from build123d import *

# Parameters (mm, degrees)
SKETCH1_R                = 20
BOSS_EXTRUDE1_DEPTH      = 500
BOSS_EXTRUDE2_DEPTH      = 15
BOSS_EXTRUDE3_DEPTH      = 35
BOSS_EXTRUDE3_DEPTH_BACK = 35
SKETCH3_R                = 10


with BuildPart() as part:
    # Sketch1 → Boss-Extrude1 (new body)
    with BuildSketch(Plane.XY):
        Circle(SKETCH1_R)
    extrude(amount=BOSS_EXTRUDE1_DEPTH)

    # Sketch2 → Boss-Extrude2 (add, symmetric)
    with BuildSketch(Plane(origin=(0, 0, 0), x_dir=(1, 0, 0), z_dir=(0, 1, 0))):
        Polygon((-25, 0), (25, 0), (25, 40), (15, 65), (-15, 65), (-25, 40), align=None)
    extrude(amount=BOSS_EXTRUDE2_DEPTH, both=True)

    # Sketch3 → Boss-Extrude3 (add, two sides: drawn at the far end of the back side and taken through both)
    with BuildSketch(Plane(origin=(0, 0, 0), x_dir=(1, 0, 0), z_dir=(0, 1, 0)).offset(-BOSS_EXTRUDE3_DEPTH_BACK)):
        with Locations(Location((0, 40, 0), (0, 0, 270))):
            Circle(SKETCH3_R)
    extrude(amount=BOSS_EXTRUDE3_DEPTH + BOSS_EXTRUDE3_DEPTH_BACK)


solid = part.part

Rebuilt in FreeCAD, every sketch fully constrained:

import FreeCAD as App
import Part
import Sketcher

doc = App.newDocument("Part")
params = doc.addObject("Spreadsheet::Sheet", "Params")
for row, (alias, value) in enumerate([
    ("sketch1_diameter", "40 mm"),
    ("pad1_length", "500 mm"),
    ("sketch2_width", "50 mm"),
    ("sketch2_width2", "30 mm"),
    ("sketch2_height", "40 mm"),
    ("pad2_length", "30 mm"),
    ("sketch3_diameter", "20 mm"),
    ("pad3_length", "35 mm"),
    ("pad3_length2", "35 mm"),
], start=1):
    params.set(f"A{row}", alias)
    params.set(f"B{row}", "=" + value)
    params.setAlias(f"B{row}", alias)

body = doc.addObject("PartDesign::Body", "Body")

sketch1 = doc.addObject("Sketcher::SketchObject", "Sketch")
body.addObject(sketch1)
sketch1.AttachmentSupport = (doc.XY_Plane, [""])
sketch1.MapMode = "FlatFace"
sketch1.addGeometry(Part.Circle(App.Vector(0, 0, 0), App.Vector(0, 0, 1), 20), False)
sketch1.addConstraint([
    Sketcher.Constraint("Coincident", 0, 3, -1, 1),
    Sketcher.Constraint("Diameter", 0, 40.0),
])
sketch1.setExpression("Constraints[1]", "Params.sketch1_diameter")
pad1 = doc.addObject("PartDesign::Pad", "Pad")
body.addObject(pad1)
pad1.Profile = sketch1
pad1.setExpression("Length", "Params.pad1_length")

sketch2 = doc.addObject("Sketcher::SketchObject", "Sketch001")
body.addObject(sketch2)
sketch2.AttachmentSupport = (doc.XZ_Plane, [""])
sketch2.MapMode = "FlatFace"
sketch2.addGeometry([
    Part.LineSegment(App.Vector(-25, 0, 0), App.Vector(25, 0, 0)),
    Part.LineSegment(App.Vector(25, 0, 0), App.Vector(25, -40, 0)),
    Part.LineSegment(App.Vector(25, -40, 0), App.Vector(15, -65, 0)),
    Part.LineSegment(App.Vector(15, -65, 0), App.Vector(-15, -65, 0)),
    Part.LineSegment(App.Vector(-15, -65, 0), App.Vector(-25, -40, 0)),
    Part.LineSegment(App.Vector(-25, -40, 0), App.Vector(-25, 0, 0)),
], False)
sketch2.addConstraint([
    Sketcher.Constraint("Coincident", 0, 2, 1, 1),
    Sketcher.Constraint("Coincident", 1, 2, 2, 1),
    Sketcher.Constraint("Coincident", 2, 2, 3, 1),
    Sketcher.Constraint("Coincident", 3, 2, 4, 1),
    Sketcher.Constraint("Coincident", 4, 2, 5, 1),
    Sketcher.Constraint("Coincident", 5, 2, 0, 1),
    Sketcher.Constraint("Horizontal", 0),
    Sketcher.Constraint("Vertical", 1),
    Sketcher.Constraint("Horizontal", 3),
    Sketcher.Constraint("Vertical", 5),
    Sketcher.Constraint("Symmetric", 0, 2, 5, 2, -1, 1),
    Sketcher.Constraint("Horizontal", 1, 2, 4, 2),
    Sketcher.Constraint("Equal", 2, 4),
    Sketcher.Constraint("DistanceX", 0, 1, 0, 2, 50.0),
    Sketcher.Constraint("DistanceX", 3, 2, 3, 1, 30.0),
    Sketcher.Constraint("DistanceY", 1, 2, 1, 1, 40.0),
    Sketcher.Constraint("DistanceY", 2, 2, -1, 1, 65.0),
])
sketch2.setExpression("Constraints[13]", "Params.sketch2_width")
sketch2.setExpression("Constraints[14]", "Params.sketch2_width2")
sketch2.setExpression("Constraints[15]", "Params.sketch2_height")
pad2 = doc.addObject("PartDesign::Pad", "Pad001")
body.addObject(pad2)
pad2.Profile = sketch2
pad2.setExpression("Length", "Params.pad2_length")
pad2.Midplane = True

sketch3 = doc.addObject("Sketcher::SketchObject", "Sketch002")
body.addObject(sketch3)
sketch3.AttachmentSupport = (doc.XZ_Plane, [""])
sketch3.MapMode = "FlatFace"
sketch3.addGeometry(Part.Circle(App.Vector(0, -40, 0), App.Vector(0, 0, 1), 10), False)
sketch3.addConstraint([
    Sketcher.Constraint("PointOnObject", 0, 3, -2),
    Sketcher.Constraint("Diameter", 0, 20.0),
    Sketcher.Constraint("DistanceY", 0, 3, -1, 1, 40.0),
])
sketch3.setExpression("Constraints[1]", "Params.sketch3_diameter")
pad3 = doc.addObject("PartDesign::Pad", "Pad002")
body.addObject(pad3)
pad3.Profile = sketch3
pad3.Type = "TwoLengths"
pad3.setExpression("Length", "Params.pad3_length")
pad3.setExpression("Length2", "Params.pad3_length2")
pad3.Reversed = True

doc.recompute()
